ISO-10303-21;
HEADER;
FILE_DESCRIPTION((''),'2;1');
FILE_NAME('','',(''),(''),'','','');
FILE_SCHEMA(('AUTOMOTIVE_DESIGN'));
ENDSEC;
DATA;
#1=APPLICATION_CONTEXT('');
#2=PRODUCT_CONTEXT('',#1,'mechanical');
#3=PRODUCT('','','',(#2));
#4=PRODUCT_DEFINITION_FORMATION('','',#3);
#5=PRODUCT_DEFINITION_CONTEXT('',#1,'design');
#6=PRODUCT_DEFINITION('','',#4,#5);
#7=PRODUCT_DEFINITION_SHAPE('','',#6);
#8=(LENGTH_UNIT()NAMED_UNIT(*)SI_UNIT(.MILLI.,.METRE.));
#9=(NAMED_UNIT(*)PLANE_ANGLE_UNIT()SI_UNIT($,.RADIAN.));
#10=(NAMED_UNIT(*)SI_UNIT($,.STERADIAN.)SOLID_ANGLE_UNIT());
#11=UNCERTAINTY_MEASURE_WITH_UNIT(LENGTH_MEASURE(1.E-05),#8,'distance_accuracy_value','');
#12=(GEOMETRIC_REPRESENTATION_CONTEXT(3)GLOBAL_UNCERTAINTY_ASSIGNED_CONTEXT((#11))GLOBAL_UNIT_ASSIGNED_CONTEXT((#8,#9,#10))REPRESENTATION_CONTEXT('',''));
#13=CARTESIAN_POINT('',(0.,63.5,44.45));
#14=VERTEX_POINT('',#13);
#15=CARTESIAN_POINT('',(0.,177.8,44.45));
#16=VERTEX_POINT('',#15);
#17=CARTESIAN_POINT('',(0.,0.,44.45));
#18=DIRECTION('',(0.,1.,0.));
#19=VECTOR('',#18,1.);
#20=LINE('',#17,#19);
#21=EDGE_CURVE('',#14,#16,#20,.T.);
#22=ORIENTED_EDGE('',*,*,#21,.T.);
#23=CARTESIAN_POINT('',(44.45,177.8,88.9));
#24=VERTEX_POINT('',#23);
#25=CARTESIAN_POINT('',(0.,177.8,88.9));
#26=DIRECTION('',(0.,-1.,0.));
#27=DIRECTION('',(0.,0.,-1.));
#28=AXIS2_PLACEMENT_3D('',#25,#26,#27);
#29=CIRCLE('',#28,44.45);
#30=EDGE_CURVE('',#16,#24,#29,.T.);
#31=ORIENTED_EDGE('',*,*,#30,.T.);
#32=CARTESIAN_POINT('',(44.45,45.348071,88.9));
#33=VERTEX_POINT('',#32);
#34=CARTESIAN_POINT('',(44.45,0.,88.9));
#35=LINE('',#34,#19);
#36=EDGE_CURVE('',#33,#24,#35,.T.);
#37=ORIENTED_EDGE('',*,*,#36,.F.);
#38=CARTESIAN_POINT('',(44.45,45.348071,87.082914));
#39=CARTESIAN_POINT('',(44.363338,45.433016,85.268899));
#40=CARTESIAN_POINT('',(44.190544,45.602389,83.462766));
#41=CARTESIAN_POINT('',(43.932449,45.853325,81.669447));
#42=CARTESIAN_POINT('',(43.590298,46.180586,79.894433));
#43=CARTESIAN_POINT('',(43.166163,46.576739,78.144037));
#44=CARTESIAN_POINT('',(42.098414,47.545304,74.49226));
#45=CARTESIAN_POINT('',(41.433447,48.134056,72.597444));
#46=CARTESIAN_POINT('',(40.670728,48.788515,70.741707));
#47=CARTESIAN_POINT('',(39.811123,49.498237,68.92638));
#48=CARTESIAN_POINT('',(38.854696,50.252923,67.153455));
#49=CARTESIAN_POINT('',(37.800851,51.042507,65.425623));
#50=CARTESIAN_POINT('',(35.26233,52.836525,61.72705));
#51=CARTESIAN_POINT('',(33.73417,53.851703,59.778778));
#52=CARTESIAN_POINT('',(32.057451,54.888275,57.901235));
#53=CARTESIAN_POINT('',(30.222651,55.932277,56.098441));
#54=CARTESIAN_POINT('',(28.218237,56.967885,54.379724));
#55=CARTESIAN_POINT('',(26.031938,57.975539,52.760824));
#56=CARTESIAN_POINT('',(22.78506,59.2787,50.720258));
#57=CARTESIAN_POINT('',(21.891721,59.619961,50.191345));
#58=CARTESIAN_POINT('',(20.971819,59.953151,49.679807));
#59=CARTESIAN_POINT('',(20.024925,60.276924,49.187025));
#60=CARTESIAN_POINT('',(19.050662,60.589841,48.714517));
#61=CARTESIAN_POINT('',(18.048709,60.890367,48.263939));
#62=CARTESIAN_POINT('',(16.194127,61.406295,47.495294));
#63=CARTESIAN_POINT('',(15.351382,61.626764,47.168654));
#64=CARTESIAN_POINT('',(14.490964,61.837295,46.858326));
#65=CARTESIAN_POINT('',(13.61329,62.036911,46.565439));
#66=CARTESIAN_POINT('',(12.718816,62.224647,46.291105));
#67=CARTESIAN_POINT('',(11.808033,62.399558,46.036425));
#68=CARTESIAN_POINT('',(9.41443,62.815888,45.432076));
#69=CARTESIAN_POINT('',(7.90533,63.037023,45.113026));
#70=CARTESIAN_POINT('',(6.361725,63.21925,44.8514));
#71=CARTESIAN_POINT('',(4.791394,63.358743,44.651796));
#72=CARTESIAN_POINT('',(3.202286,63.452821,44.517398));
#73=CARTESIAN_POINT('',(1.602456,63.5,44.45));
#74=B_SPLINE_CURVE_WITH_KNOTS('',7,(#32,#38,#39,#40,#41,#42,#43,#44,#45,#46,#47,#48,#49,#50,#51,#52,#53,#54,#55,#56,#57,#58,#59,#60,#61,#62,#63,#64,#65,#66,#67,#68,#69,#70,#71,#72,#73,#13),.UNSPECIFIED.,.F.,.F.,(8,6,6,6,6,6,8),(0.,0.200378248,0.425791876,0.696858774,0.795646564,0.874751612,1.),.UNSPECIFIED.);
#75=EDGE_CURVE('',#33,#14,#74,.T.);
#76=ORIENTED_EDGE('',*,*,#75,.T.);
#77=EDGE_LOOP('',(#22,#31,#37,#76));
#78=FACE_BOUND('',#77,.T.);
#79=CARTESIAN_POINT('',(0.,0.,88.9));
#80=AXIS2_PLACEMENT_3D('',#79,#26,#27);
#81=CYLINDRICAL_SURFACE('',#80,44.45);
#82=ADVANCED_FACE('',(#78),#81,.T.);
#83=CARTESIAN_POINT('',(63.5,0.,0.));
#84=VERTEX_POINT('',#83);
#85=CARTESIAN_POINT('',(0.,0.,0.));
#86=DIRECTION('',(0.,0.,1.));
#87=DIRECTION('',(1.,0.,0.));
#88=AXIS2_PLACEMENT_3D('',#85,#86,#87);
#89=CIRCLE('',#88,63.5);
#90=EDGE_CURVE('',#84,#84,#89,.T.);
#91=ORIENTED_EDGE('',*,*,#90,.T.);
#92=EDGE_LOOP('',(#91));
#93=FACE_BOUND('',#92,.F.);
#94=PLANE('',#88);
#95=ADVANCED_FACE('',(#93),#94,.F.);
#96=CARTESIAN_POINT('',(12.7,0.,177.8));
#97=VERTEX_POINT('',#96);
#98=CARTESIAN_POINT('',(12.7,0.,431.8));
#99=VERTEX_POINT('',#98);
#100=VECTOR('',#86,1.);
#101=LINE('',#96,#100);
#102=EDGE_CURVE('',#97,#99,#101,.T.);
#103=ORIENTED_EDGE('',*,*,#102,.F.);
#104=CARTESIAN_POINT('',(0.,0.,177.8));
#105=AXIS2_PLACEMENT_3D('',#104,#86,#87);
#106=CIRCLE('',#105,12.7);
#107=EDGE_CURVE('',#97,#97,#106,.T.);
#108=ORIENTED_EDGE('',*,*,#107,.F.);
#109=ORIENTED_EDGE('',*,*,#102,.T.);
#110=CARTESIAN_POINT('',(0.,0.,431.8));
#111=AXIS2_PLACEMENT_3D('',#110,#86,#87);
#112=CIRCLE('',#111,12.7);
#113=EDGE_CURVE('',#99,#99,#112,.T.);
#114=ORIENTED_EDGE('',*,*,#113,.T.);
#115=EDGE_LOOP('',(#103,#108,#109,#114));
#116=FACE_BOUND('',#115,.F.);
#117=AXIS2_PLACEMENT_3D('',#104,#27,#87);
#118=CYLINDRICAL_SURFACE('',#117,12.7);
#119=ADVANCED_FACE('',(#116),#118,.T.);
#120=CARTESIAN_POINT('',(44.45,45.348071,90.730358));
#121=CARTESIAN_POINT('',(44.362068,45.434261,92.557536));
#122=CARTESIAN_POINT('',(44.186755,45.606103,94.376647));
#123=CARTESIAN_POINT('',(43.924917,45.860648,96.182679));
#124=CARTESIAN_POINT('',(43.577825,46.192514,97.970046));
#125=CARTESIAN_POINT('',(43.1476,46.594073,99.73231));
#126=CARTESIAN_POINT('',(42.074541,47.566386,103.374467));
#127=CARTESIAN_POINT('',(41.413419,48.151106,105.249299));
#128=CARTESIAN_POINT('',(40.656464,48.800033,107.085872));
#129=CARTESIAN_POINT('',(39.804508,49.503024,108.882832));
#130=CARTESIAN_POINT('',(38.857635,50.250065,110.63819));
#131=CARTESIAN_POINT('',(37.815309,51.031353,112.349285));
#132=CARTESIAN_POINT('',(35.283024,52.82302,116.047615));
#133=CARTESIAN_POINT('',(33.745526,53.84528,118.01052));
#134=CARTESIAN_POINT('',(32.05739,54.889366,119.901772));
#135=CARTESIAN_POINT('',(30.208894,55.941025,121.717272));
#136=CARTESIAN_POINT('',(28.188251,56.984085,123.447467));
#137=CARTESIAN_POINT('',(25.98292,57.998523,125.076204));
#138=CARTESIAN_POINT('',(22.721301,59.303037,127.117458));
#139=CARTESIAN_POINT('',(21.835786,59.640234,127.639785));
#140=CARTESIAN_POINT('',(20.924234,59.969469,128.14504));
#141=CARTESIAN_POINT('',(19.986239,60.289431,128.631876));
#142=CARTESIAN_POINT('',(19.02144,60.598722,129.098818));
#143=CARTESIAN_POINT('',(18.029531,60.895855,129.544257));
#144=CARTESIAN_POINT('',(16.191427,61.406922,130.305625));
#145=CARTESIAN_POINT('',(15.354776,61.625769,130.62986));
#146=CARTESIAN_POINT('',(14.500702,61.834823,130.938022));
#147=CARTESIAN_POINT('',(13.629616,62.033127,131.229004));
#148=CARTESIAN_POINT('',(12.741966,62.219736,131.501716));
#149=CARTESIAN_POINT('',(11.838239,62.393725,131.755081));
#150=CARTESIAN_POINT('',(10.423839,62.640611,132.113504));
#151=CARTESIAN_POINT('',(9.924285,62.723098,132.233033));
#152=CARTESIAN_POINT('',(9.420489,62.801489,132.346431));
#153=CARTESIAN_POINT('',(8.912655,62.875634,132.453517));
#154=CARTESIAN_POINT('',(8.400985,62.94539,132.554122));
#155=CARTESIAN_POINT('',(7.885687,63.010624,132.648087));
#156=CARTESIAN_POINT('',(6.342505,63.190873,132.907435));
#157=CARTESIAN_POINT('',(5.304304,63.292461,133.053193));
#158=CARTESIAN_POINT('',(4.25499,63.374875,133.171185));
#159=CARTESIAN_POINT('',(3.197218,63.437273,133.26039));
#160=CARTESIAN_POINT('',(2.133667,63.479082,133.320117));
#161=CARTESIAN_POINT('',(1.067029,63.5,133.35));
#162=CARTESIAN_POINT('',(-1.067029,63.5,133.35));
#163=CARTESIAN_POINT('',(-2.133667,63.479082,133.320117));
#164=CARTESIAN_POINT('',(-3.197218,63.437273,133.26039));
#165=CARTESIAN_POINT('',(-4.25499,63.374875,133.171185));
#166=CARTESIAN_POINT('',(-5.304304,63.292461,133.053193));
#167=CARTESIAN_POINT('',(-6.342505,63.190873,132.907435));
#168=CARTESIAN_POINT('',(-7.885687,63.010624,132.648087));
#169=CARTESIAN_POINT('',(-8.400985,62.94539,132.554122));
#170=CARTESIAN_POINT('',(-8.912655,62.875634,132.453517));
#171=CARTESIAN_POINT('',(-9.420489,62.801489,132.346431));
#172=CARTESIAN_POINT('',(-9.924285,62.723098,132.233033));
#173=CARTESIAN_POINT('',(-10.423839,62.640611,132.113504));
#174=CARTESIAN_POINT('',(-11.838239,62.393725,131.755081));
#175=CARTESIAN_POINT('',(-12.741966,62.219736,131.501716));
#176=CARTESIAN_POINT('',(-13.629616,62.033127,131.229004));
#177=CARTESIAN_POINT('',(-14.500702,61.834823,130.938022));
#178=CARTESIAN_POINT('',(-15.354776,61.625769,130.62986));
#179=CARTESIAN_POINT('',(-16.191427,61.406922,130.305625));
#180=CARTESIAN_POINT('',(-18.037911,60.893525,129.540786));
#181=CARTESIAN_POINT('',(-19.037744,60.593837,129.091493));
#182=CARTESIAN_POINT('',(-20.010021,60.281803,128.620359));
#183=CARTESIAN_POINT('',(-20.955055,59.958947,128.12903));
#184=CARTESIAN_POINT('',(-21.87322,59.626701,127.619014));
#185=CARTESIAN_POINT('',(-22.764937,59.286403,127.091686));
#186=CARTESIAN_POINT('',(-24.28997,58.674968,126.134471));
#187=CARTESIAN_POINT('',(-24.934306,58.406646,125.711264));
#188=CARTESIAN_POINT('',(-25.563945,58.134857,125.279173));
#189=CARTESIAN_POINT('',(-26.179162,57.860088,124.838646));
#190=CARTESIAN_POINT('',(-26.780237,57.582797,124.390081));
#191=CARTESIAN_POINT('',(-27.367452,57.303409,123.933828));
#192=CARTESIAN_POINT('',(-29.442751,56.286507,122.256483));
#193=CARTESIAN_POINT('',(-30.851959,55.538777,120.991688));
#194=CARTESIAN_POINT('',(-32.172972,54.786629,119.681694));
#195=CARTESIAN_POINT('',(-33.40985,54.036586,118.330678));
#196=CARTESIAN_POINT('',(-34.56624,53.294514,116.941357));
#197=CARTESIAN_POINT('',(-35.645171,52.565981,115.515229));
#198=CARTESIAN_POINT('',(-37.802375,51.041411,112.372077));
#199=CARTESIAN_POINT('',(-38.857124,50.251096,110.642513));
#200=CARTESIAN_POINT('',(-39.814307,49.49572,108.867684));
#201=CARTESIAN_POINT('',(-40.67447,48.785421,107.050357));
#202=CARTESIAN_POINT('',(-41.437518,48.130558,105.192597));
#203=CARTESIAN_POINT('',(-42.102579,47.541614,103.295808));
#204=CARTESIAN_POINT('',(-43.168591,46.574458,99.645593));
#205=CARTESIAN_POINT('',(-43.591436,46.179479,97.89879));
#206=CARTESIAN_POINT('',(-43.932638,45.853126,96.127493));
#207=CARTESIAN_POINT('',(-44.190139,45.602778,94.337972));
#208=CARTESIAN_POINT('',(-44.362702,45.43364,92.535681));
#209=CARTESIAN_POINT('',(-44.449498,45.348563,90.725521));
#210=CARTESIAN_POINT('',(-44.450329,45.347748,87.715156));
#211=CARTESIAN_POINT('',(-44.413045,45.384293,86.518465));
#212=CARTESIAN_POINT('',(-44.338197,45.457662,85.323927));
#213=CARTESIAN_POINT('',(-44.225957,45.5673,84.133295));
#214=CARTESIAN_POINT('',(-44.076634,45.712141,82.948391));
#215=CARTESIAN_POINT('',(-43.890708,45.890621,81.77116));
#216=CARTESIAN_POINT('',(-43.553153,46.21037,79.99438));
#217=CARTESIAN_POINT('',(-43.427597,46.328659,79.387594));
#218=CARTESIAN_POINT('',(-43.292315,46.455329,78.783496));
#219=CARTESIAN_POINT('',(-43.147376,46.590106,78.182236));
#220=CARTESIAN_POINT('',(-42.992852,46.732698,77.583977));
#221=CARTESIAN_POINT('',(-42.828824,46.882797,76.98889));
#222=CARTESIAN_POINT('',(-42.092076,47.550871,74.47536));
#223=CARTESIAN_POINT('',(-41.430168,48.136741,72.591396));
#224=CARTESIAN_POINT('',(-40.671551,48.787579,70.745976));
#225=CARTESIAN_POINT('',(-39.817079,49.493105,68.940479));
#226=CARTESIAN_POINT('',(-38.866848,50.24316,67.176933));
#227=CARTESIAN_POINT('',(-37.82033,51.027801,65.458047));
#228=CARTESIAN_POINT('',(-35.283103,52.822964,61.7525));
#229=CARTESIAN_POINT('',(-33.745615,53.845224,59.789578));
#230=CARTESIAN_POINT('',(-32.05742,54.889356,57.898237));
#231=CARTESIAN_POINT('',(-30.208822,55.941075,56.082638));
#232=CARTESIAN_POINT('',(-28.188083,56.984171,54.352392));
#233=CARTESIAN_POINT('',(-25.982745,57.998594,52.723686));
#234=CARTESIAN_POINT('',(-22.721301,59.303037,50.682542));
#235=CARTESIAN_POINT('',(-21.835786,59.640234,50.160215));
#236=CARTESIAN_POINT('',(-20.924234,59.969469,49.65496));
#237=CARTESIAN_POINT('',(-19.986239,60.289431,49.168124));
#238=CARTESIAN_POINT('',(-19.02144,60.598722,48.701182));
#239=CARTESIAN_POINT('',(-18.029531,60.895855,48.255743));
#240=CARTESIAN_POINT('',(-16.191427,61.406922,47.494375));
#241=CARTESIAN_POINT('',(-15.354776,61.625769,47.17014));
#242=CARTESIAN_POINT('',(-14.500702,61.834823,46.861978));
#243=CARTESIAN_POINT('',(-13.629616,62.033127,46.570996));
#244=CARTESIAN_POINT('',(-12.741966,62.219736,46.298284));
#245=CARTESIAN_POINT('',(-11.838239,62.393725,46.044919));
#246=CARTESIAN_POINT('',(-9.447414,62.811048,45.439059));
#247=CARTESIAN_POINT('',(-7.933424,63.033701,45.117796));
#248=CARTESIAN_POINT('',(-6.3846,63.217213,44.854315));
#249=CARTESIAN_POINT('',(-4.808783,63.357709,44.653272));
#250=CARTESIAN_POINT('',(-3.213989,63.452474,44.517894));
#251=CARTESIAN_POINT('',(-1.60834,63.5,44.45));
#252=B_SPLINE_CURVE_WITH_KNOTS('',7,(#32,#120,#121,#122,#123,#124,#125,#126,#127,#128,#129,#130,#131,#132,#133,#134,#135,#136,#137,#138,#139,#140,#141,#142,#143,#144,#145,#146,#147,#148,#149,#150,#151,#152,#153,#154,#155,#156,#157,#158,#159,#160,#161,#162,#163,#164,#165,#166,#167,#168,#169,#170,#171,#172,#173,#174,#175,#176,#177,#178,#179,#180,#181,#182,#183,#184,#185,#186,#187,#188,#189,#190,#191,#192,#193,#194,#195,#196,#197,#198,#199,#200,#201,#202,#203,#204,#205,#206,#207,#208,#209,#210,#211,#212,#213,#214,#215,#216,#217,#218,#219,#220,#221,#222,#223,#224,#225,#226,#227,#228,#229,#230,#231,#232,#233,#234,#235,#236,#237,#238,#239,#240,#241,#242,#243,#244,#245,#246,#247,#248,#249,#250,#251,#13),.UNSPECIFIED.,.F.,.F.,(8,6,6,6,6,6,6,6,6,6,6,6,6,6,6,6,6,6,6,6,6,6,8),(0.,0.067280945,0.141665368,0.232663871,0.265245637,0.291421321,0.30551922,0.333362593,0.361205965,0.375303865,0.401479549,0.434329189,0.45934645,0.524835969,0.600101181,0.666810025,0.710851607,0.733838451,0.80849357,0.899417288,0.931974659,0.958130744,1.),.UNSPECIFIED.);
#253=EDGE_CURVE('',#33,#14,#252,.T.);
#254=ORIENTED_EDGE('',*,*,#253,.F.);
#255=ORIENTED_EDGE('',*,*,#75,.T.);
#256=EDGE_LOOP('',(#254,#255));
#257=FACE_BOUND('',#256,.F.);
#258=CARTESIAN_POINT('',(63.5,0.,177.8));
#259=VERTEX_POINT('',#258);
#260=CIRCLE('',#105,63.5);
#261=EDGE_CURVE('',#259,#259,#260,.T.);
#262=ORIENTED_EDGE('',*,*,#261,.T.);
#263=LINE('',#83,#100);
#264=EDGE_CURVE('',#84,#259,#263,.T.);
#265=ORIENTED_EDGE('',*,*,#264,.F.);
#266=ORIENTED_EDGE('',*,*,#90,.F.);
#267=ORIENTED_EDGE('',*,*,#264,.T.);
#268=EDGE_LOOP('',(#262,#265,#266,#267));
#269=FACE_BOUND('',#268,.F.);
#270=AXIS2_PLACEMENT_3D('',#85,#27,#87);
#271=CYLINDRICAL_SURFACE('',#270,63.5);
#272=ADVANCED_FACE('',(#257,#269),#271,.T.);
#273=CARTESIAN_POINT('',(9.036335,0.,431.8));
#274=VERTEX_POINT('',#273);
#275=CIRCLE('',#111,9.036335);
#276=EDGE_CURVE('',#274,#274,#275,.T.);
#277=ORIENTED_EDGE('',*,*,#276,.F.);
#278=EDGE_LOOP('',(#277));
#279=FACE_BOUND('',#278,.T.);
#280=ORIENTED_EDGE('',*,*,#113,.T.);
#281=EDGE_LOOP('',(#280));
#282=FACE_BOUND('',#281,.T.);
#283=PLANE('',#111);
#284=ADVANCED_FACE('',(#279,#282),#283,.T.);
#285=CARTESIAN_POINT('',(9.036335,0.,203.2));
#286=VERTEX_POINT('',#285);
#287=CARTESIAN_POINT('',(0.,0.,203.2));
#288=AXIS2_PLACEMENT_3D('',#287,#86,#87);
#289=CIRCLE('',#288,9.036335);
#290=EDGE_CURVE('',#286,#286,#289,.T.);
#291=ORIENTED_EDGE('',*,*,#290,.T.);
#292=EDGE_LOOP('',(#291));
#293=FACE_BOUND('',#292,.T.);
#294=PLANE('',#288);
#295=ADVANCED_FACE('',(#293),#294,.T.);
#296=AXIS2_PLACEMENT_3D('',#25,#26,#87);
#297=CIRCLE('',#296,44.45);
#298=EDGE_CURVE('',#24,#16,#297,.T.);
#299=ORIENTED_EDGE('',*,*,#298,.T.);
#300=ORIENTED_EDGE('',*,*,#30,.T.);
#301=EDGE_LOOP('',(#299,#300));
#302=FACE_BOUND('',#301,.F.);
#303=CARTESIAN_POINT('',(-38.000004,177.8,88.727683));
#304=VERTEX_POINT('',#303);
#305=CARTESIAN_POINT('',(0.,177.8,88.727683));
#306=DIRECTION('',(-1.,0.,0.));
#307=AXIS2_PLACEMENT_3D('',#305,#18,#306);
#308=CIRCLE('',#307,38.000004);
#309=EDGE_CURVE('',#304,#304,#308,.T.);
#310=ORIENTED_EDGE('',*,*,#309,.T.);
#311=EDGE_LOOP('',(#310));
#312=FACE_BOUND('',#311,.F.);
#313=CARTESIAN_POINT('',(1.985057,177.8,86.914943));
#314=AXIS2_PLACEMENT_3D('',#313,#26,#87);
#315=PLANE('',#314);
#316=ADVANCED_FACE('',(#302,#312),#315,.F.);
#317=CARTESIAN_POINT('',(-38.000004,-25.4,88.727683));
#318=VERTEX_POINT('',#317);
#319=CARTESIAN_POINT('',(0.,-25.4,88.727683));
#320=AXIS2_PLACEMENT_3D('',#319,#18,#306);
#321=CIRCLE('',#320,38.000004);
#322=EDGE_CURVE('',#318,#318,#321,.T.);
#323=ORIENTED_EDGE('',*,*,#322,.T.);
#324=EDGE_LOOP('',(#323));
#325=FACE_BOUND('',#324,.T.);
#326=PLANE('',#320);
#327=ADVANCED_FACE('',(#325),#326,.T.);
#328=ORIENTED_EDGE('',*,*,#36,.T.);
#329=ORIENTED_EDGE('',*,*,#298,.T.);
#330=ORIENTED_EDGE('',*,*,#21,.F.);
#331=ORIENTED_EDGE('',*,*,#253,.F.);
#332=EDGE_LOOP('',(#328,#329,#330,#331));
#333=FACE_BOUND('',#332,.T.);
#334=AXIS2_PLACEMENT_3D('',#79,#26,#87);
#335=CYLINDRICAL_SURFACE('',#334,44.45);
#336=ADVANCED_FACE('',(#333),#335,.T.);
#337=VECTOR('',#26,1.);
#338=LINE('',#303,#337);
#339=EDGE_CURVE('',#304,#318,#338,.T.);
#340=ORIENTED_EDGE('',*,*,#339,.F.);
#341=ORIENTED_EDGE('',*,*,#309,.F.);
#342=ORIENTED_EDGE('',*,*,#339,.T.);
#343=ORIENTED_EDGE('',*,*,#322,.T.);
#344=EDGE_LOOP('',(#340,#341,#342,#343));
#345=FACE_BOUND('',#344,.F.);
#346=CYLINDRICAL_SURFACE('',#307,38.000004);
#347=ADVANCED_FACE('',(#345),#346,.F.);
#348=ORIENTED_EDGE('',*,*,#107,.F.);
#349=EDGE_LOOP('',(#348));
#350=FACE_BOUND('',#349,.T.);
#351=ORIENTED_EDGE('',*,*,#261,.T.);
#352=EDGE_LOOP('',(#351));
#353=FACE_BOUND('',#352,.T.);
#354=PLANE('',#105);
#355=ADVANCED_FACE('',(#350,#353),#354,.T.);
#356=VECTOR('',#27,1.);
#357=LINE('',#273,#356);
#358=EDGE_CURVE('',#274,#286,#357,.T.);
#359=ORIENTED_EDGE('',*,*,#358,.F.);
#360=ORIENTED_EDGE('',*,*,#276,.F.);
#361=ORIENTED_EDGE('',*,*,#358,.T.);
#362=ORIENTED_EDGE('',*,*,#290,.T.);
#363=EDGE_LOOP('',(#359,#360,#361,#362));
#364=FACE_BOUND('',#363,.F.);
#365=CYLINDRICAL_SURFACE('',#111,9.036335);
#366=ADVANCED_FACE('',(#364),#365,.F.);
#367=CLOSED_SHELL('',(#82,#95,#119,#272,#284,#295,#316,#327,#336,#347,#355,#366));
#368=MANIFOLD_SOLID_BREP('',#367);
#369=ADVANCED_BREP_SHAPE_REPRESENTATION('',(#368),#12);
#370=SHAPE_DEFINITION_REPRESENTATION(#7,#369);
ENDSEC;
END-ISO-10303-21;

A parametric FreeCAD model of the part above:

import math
import FreeCAD as App
import Part
import Sketcher
Q = App.Units.Quantity

doc = App.newDocument("Part")
body = doc.addObject("PartDesign::Body", "Body")

# Sketch on XY plane
sketch1 = body.newObject("Sketcher::SketchObject", "Sketch")
sketch1.AttachmentSupport = (doc.getObject("XY_Plane"), [""])
sketch1.MapMode = "FlatFace"
sketch1.addGeometry(Part.Circle(App.Vector(0, 0, 0), App.Vector(0, 0, 1), 63.5), False)
sketch1.addConstraint(Sketcher.Constraint("Coincident", 0, 3, -1, 1))
sketch1.addConstraint(Sketcher.Constraint("Diameter", 0, Q("5 in")))
pad1 = body.newObject("PartDesign::Pad", "Pad")
pad1.Profile = sketch1
pad1.Length = Q("7 in")

# Sketch on XZ plane
sketch2 = body.newObject("Sketcher::SketchObject", "Sketch001")
sketch2.AttachmentSupport = (doc.getObject("XZ_Plane"), [""])
sketch2.MapMode = "FlatFace"
sketch2.addGeometry(Part.ArcOfCircle(Part.Circle(App.Vector(0, 88.9, 0), App.Vector(0, 0, 1), 44.45), math.radians(-90), math.radians(0)), False)
sketch2.addGeometry(Part.ArcOfCircle(Part.Circle(App.Vector(0, 88.9, 0), App.Vector(0, 0, 1), 44.45), math.radians(0), math.radians(270)), False)
sketch2.addConstraint(Sketcher.Constraint("Tangent", 0, 1, 1, 2))
sketch2.addConstraint(Sketcher.Constraint("Coincident", 1, 1, 0, 2))
sketch2.addConstraint(Sketcher.Constraint("PointOnObject", 0, 3, -2))
sketch2.addConstraint(Sketcher.Constraint("PointOnObject", 0, 1, -2))
sketch2.addConstraint(Sketcher.Constraint("Horizontal", 0, 3, 1, 1))
sketch2.addConstraint(Sketcher.Constraint("Radius", 0, Q("1.75 in")))
sketch2.addConstraint(Sketcher.Constraint("DistanceY", -1, 1, 0, 3, Q("3.5 in")))
pad2 = body.newObject("PartDesign::Pad", "Pad001")
pad2.Profile = sketch2
pad2.Length = Q("7 in")
pad2.Reversed = True

# Sketch on XY plane
sketch3 = body.newObject("Sketcher::SketchObject", "Sketch002")
sketch3.AttachmentSupport = (doc.getObject("XY_Plane"), [""])
sketch3.MapMode = "FlatFace"
sketch3.AttachmentOffset = App.Placement(App.Vector(0, 0, 7 * 25.4), App.Rotation())
sketch3.addGeometry(Part.Circle(App.Vector(0, 0, 0), App.Vector(0, 0, 1), 12.7), False)
sketch3.addConstraint(Sketcher.Constraint("Coincident", 0, 3, -1, 1))
sketch3.addConstraint(Sketcher.Constraint("Diameter", 0, Q("1 in")))
pad3 = body.newObject("PartDesign::Pad", "Pad002")
pad3.Profile = sketch3
pad3.Length = Q("10 in")

# Sketch on XZ plane
sketch4 = body.newObject("Sketcher::SketchObject", "Sketch003")
sketch4.AttachmentSupport = (doc.getObject("XZ_Plane"), [""])
sketch4.MapMode = "FlatFace"
sketch4.AttachmentOffset = App.Placement(App.Vector(0, 0, -7 * 25.4), App.Rotation())
sketch4.addGeometry(Part.Circle(App.Vector(0, 88.727683, 0), App.Vector(0, 0, 1), 38.000004), False)
sketch4.addConstraint(Sketcher.Constraint("PointOnObject", 0, 3, -2))
sketch4.addConstraint(Sketcher.Constraint("Diameter", 0, 76.000008))
sketch4.addConstraint(Sketcher.Constraint("DistanceY", -1, 1, 0, 3, 88.727683))
pocket1 = body.newObject("PartDesign::Pocket", "Pocket")
pocket1.Profile = sketch4
pocket1.Length = Q("8 in")
pocket1.Reversed = True

# Sketch on XY plane
sketch5 = body.newObject("Sketcher::SketchObject", "Sketch004")
sketch5.AttachmentSupport = (doc.getObject("XY_Plane"), [""])
sketch5.MapMode = "FlatFace"
sketch5.AttachmentOffset = App.Placement(App.Vector(0, 0, 17 * 25.4), App.Rotation())
sketch5.addGeometry(Part.Circle(App.Vector(0, 0, 0), App.Vector(0, 0, 1), 9.036335), False)
sketch5.addConstraint(Sketcher.Constraint("Coincident", 0, 3, -1, 1))
sketch5.addConstraint(Sketcher.Constraint("Diameter", 0, 18.07267))
pocket2 = body.newObject("PartDesign::Pocket", "Pocket001")
pocket2.Profile = sketch5
pocket2.Length = Q("9 in")

doc.recompute()
